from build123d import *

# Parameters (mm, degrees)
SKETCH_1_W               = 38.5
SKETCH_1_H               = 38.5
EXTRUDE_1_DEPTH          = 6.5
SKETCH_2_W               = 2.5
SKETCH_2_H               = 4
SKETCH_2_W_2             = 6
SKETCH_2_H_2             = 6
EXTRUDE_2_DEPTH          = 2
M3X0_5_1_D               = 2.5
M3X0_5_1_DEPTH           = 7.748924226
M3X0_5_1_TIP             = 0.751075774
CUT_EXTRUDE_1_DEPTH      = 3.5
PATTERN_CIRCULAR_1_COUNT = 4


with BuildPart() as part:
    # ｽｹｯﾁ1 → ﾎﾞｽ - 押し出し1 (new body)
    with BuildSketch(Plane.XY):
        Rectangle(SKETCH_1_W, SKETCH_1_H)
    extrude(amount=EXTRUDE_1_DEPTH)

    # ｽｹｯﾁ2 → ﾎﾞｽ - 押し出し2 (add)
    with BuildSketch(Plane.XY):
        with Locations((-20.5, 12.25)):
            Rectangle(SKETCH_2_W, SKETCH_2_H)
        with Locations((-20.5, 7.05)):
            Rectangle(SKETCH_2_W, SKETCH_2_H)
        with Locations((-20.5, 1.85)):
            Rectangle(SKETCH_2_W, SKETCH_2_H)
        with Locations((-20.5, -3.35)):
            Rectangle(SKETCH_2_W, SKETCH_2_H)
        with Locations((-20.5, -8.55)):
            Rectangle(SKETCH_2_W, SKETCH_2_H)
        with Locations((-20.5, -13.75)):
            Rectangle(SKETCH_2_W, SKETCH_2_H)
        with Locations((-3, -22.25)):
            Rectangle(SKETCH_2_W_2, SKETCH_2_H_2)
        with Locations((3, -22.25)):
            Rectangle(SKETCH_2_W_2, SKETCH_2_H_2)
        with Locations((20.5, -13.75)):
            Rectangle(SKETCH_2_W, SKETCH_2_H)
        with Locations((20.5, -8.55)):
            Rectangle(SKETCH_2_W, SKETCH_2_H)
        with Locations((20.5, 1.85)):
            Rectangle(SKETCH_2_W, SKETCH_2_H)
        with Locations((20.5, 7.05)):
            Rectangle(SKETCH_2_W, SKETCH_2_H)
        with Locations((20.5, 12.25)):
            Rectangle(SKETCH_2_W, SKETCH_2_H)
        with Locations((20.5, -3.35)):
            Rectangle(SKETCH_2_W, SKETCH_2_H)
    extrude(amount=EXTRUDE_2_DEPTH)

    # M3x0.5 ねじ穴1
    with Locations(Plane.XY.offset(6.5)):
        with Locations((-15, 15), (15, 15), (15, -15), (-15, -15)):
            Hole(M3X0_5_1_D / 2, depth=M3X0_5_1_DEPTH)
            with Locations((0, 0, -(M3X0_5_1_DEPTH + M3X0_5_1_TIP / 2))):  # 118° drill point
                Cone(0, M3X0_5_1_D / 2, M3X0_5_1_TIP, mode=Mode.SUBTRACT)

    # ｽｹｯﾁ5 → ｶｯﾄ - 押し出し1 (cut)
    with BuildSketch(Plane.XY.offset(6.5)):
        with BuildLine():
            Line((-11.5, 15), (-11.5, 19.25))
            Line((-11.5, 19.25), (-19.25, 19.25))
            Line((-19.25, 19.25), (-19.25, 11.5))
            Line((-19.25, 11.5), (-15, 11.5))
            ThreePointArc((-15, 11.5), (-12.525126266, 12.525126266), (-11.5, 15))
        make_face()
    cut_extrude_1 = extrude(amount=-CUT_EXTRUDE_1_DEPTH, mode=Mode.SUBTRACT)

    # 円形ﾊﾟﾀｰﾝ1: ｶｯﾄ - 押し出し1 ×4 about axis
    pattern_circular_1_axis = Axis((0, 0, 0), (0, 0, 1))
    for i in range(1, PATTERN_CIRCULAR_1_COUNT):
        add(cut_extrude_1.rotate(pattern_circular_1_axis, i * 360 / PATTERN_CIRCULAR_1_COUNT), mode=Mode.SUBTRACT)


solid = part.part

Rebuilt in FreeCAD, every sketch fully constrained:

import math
import FreeCAD as App
import Part
import Sketcher
Q = App.Units.Quantity


def add_polygon(sketch, points):
    """Adds a closed chain of lines whose ends are joined by coincident constraints."""
    first, n = sketch.GeometryCount, len(points)
    for a, b in zip(points, points[1:] + points[:1]):
        sketch.addGeometry(Part.LineSegment(App.Vector(*a, 0), App.Vector(*b, 0)), False)
    for i in range(n):
        sketch.addConstraint(Sketcher.Constraint("Coincident", first + i, 2, first + (i + 1) % n, 1))

doc = App.newDocument("Part")
params = doc.addObject("Spreadsheet::Sheet", "Params")
for row, (alias, value) in enumerate([
    ("sketch1_width", "38.5 mm"),
    ("pad1_length", "6.5 mm"),
    ("sketch2_width", "12 mm"),
    ("sketch2_height", "4 mm"),
    ("sketch2_height2", "6 mm"),
    ("sketch2_width2", "2.5 mm"),
    ("pad2_length", "2 mm"),
    ("sketch3_diameter", "2.5 mm"),
    ("hole_diameter", "2.5 mm"),
    ("hole_depth", "7.748924 mm"),
    ("sketch4_radius", "3.5 mm"),
    ("sketch4_width", "7.75 mm"),
    ("pocket1_length", "3.5 mm"),
], start=1):
    params.set(f"A{row}", alias)
    params.set(f"B{row}", "=" + value)
    params.setAlias(f"B{row}", alias)

body = doc.addObject("PartDesign::Body", "Body")

# Sketch on XY plane
sketch1 = body.newObject("Sketcher::SketchObject", "Sketch")
sketch1.AttachmentSupport = (doc.getObject("XY_Plane"), [""])
sketch1.MapMode = "FlatFace"
add_polygon(sketch1, [(-19.25, 19.25), (-19.25, -19.25), (19.25, -19.25), (19.25, 19.25)])  # lines 0-3
sketch1.addConstraint(Sketcher.Constraint("Vertical", 0))
sketch1.addConstraint(Sketcher.Constraint("Horizontal", 1))
sketch1.addConstraint(Sketcher.Constraint("Vertical", 2))
sketch1.addConstraint(Sketcher.Constraint("Horizontal", 3))
sketch1.addConstraint(Sketcher.Constraint("Symmetric", 0, 2, 2, 2, -1, 1))
sketch1.addConstraint(Sketcher.Constraint("Equal", 3, 0))
sketch1.addConstraint(Sketcher.Constraint("DistanceX", 1, 1, 1, 2, Q("38.5 mm")))
sketch1.setExpression("Constraints[10]", "Params.sketch1_width")
pad1 = body.newObject("PartDesign::Pad", "Pad")
pad1.Profile = sketch1
pad1.setExpression("Length", "Params.pad1_length")

# Sketch on XY plane
sketch2 = body.newObject("Sketcher::SketchObject", "Sketch001")
sketch2.AttachmentSupport = (doc.getObject("XY_Plane"), [""])
sketch2.MapMode = "FlatFace"
add_polygon(sketch2, [(-21.75, 14.25), (-21.75, 10.25), (-19.25, 10.25), (-19.25, 14.25)])  # lines 0-3
add_polygon(sketch2, [(-21.75, 9.05), (-21.75, 5.05), (-19.25, 5.05), (-19.25, 9.05)])  # lines 4-7
add_polygon(sketch2, [(-21.75, 3.85), (-21.75, -0.15), (-19.25, -0.15), (-19.25, 3.85)])  # lines 8-11
add_polygon(sketch2, [(-21.75, -1.35), (-21.75, -5.35), (-19.25, -5.35), (-19.25, -1.35)])  # lines 12-15
add_polygon(sketch2, [(-21.75, -6.55), (-21.75, -10.55), (-19.25, -10.55), (-19.25, -6.55)])  # lines 16-19
add_polygon(sketch2, [(-21.75, -11.75), (-21.75, -15.75), (-19.25, -15.75), (-19.25, -11.75)])  # lines 20-23
add_polygon(sketch2, [(-6, -19.25), (-6, -25.25), (6, -25.25), (6, -19.25)])  # lines 24-27
add_polygon(sketch2, [(19.25, -11.75), (19.25, -15.75), (21.75, -15.75), (21.75, -11.75)])  # lines 28-31
add_polygon(sketch2, [(19.25, -6.55), (19.25, -10.55), (21.75, -10.55), (21.75, -6.55)])  # lines 32-35
add_polygon(sketch2, [(19.25, 3.85), (19.25, -0.15), (21.75, -0.15), (21.75, 3.85)])  # lines 36-39
add_polygon(sketch2, [(19.25, 9.05), (19.25, 5.05), (21.75, 5.05), (21.75, 9.05)])  # lines 40-43
add_polygon(sketch2, [(19.25, 14.25), (19.25, 10.25), (21.75, 10.25), (21.75, 14.25)])  # lines 44-47
add_polygon(sketch2, [(19.25, -1.35), (19.25, -5.35), (21.75, -5.35), (21.75, -1.35)])  # lines 48-51
sketch2.addConstraint(Sketcher.Constraint("Vertical", 0))
sketch2.addConstraint(Sketcher.Constraint("Horizontal", 1))
sketch2.addConstraint(Sketcher.Constraint("Vertical", 2))
sketch2.addConstraint(Sketcher.Constraint("Horizontal", 3))
sketch2.addConstraint(Sketcher.Constraint("Vertical", 4))
sketch2.addConstraint(Sketcher.Constraint("Horizontal", 5))
sketch2.addConstraint(Sketcher.Constraint("Vertical", 6))
sketch2.addConstraint(Sketcher.Constraint("Horizontal", 7))
sketch2.addConstraint(Sketcher.Constraint("Vertical", 8))
sketch2.addConstraint(Sketcher.Constraint("Horizontal", 9))
sketch2.addConstraint(Sketcher.Constraint("Vertical", 10))
sketch2.addConstraint(Sketcher.Constraint("Horizontal", 11))
sketch2.addConstraint(Sketcher.Constraint("Vertical", 12))
sketch2.addConstraint(Sketcher.Constraint("Horizontal", 13))
sketch2.addConstraint(Sketcher.Constraint("Vertical", 14))
sketch2.addConstraint(Sketcher.Constraint("Horizontal", 15))
sketch2.addConstraint(Sketcher.Constraint("Vertical", 16))
sketch2.addConstraint(Sketcher.Constraint("Horizontal", 17))
sketch2.addConstraint(Sketcher.Constraint("Vertical", 18))
sketch2.addConstraint(Sketcher.Constraint("Horizontal", 19))
sketch2.addConstraint(Sketcher.Constraint("Vertical", 20))
sketch2.addConstraint(Sketcher.Constraint("Horizontal", 21))
sketch2.addConstraint(Sketcher.Constraint("Vertical", 22))
sketch2.addConstraint(Sketcher.Constraint("Horizontal", 23))
sketch2.addConstraint(Sketcher.Constraint("Vertical", 24))
sketch2.addConstraint(Sketcher.Constraint("Horizontal", 25))
sketch2.addConstraint(Sketcher.Constraint("Vertical", 26))
sketch2.addConstraint(Sketcher.Constraint("Horizontal", 27))
sketch2.addConstraint(Sketcher.Constraint("Vertical", 28))
sketch2.addConstraint(Sketcher.Constraint("Horizontal", 29))
sketch2.addConstraint(Sketcher.Constraint("Vertical", 30))
sketch2.addConstraint(Sketcher.Constraint("Horizontal", 31))
sketch2.addConstraint(Sketcher.Constraint("Vertical", 32))
sketch2.addConstraint(Sketcher.Constraint("Horizontal", 33))
sketch2.addConstraint(Sketcher.Constraint("Vertical", 34))
sketch2.addConstraint(Sketcher.Constraint("Horizontal", 35))
sketch2.addConstraint(Sketcher.Constraint("Vertical", 36))
sketch2.addConstraint(Sketcher.Constraint("Horizontal", 37))
sketch2.addConstraint(Sketcher.Constraint("Vertical", 38))
sketch2.addConstraint(Sketcher.Constraint("Horizontal", 39))
sketch2.addConstraint(Sketcher.Constraint("Vertical", 40))
sketch2.addConstraint(Sketcher.Constraint("Horizontal", 41))
sketch2.addConstraint(Sketcher.Constraint("Vertical", 42))
sketch2.addConstraint(Sketcher.Constraint("Horizontal", 43))
sketch2.addConstraint(Sketcher.Constraint("Vertical", 44))
sketch2.addConstraint(Sketcher.Constraint("Horizontal", 45))
sketch2.addConstraint(Sketcher.Constraint("Vertical", 46))
sketch2.addConstraint(Sketcher.Constraint("Horizontal", 47))
sketch2.addConstraint(Sketcher.Constraint("Vertical", 48))
sketch2.addConstraint(Sketcher.Constraint("Horizontal", 49))
sketch2.addConstraint(Sketcher.Constraint("Vertical", 50))
sketch2.addConstraint(Sketcher.Constraint("Horizontal", 51))
sketch2.addConstraint(Sketcher.Constraint("Symmetric", 21, 2, 28, 2, -2))
sketch2.addConstraint(Sketcher.Constraint("Symmetric", 23, 2, 30, 2, -2))
sketch2.addConstraint(Sketcher.Constraint("Symmetric", 17, 2, 32, 2, -2))
sketch2.addConstraint(Sketcher.Constraint("Symmetric", 19, 2, 34, 2, -2))
sketch2.addConstraint(Sketcher.Constraint("Symmetric", 9, 2, 36, 2, -2))
sketch2.addConstraint(Sketcher.Constraint("Symmetric", 11, 2, 38, 2, -2))
sketch2.addConstraint(Sketcher.Constraint("Symmetric", 5, 2, 40, 2, -2))
sketch2.addConstraint(Sketcher.Constraint("Symmetric", 7, 2, 42, 2, -2))
sketch2.addConstraint(Sketcher.Constraint("Symmetric", 1, 2, 44, 2, -2))
sketch2.addConstraint(Sketcher.Constraint("Symmetric", 3, 2, 46, 2, -2))
sketch2.addConstraint(Sketcher.Constraint("Symmetric", 13, 2, 48, 2, -2))
sketch2.addConstraint(Sketcher.Constraint("Symmetric", 15, 2, 50, 2, -2))
sketch2.addConstraint(Sketcher.Constraint("Vertical", 3, 2, 4, 2))
sketch2.addConstraint(Sketcher.Constraint("Vertical", 2, 2, 5, 2))
sketch2.addConstraint(Sketcher.Constraint("Vertical", 7, 2, 8, 2))
sketch2.addConstraint(Sketcher.Constraint("Vertical", 6, 2, 9, 2))
sketch2.addConstraint(Sketcher.Constraint("Vertical", 11, 2, 12, 2))
sketch2.addConstraint(Sketcher.Constraint("Vertical", 10, 2, 13, 2))
sketch2.addConstraint(Sketcher.Constraint("Vertical", 15, 2, 16, 2))
sketch2.addConstraint(Sketcher.Constraint("Vertical", 14, 2, 17, 2))
sketch2.addConstraint(Sketcher.Constraint("Vertical", 19, 2, 20, 2))
sketch2.addConstraint(Sketcher.Constraint("Vertical", 18, 2, 21, 2))
sketch2.addConstraint(Sketcher.Constraint("Equal", 2, 4))
sketch2.addConstraint(Sketcher.Constraint("Equal", 6, 8))
sketch2.addConstraint(Sketcher.Constraint("Equal", 10, 12))
sketch2.addConstraint(Sketcher.Constraint("Equal", 14, 16))
sketch2.addConstraint(Sketcher.Constraint("Equal", 18, 20))
sketch2.addConstraint(Sketcher.Constraint("DistanceX", 25, 1, 25, 2, Q("12 mm")))
sketch2.addConstraint(Sketcher.Constraint("DistanceY", 0, 2, 0, 1, Q("4 mm")))
sketch2.addConstraint(Sketcher.Constraint("DistanceY", 24, 2, 24, 1, Q("6 mm")))
sketch2.addConstraint(Sketcher.Constraint("DistanceX", 1, 1, 1, 2, Q("2.5 mm")))
sketch2.addConstraint(Sketcher.Constraint("DistanceX", 24, 2, -1, 1, Q("6 mm")))
sketch2.addConstraint(Sketcher.Constraint("DistanceY", 4, 2, 0, 2, Q("5.2 mm")))
sketch2.addConstraint(Sketcher.Constraint("DistanceY", 8, 2, 4, 2, Q("5.2 mm")))
sketch2.addConstraint(Sketcher.Constraint("DistanceY", 12, 2, 8, 2, Q("5.2 mm")))
sketch2.addConstraint(Sketcher.Constraint("DistanceY", 16, 2, 12, 2, Q("5.2 mm")))
sketch2.addConstraint(Sketcher.Constraint("DistanceY", 20, 2, 16, 2, Q("5.2 mm")))
sketch2.addConstraint(Sketcher.Constraint("DistanceY", 24, 2, 21, 2, Q("9.5 mm")))
sketch2.addConstraint(Sketcher.Constraint("DistanceX", 21, 2, 28, 2, Q("38.5 mm")))
sketch2.addConstraint(Sketcher.Constraint("DistanceY", -1, 1, 0, 2, Q("10.25 mm")))
sketch2.setExpression("Constraints[131]", "Params.sketch2_width")
sketch2.setExpression("Constraints[132]", "Params.sketch2_height")
sketch2.setExpression("Constraints[133]", "Params.sketch2_height2")
sketch2.setExpression("Constraints[134]", "Params.sketch2_width2")
pad2 = body.newObject("PartDesign::Pad", "Pad001")
pad2.Profile = sketch2
pad2.setExpression("Length", "Params.pad2_length")

# Sketch on XY plane
sketch3 = body.newObject("Sketcher::SketchObject", "Sketch002")
sketch3.AttachmentSupport = (doc.getObject("XY_Plane"), [""])
sketch3.MapMode = "FlatFace"
sketch3.AttachmentOffset = App.Placement(App.Vector(0, 0, 6.5), App.Rotation())
sketch3.addGeometry(Part.Circle(App.Vector(-15, 15, 0), App.Vector(0, 0, 1), 1.25), False)
sketch3.addGeometry(Part.Circle(App.Vector(15, 15, 0), App.Vector(0, 0, 1), 1.25), False)
sketch3.addGeometry(Part.Circle(App.Vector(15, -15, 0), App.Vector(0, 0, 1), 1.25), False)
sketch3.addGeometry(Part.Circle(App.Vector(-15, -15, 0), App.Vector(0, 0, 1), 1.25), False)
sketch3.addConstraint(Sketcher.Constraint("Equal", 0, 1))
sketch3.addConstraint(Sketcher.Constraint("Equal", 1, 2))
sketch3.addConstraint(Sketcher.Constraint("Equal", 2, 3))
sketch3.addConstraint(Sketcher.Constraint("Symmetric", 0, 3, 2, 3, -1, 1))
sketch3.addConstraint(Sketcher.Constraint("Symmetric", 1, 3, 3, 3, -1, 1))
sketch3.addConstraint(Sketcher.Constraint("Symmetric", 0, 3, 1, 3, -2))
sketch3.addConstraint(Sketcher.Constraint("Diameter", 0, Q("2.5 mm")))
sketch3.addConstraint(Sketcher.Constraint("DistanceX", 0, 3, -1, 1, Q("15 mm")))
sketch3.addConstraint(Sketcher.Constraint("DistanceY", -1, 1, 0, 3, Q("15 mm")))
sketch3.setExpression("Constraints[6]", "Params.sketch3_diameter")
doc.recompute()
hole = body.newObject("PartDesign::Hole", "Hole")
hole.Profile = sketch3
hole.ThreadType = "None"
hole.setExpression("Diameter", "Params.hole_diameter")
hole.DepthType = "Dimension"
hole.setExpression("Depth", "Params.hole_depth")
hole.DrillPoint = "Angled"
hole.DrillPointAngle = 118

# Sketch on XY plane
sketch4 = body.newObject("Sketcher::SketchObject", "Sketch003")
sketch4.AttachmentSupport = (doc.getObject("XY_Plane"), [""])
sketch4.MapMode = "FlatFace"
sketch4.AttachmentOffset = App.Placement(App.Vector(0, 0, 6.5), App.Rotation())
sketch4.addGeometry(Part.LineSegment(App.Vector(-11.5, 15, 0), App.Vector(-11.5, 19.25, 0)), False)
sketch4.addGeometry(Part.LineSegment(App.Vector(-11.5, 19.25, 0), App.Vector(-19.25, 19.25, 0)), False)
sketch4.addGeometry(Part.LineSegment(App.Vector(-19.25, 19.25, 0), App.Vector(-19.25, 11.5, 0)), False)
sketch4.addGeometry(Part.LineSegment(App.Vector(-19.25, 11.5, 0), App.Vector(-15, 11.5, 0)), False)
sketch4.addGeometry(Part.ArcOfCircle(Part.Circle(App.Vector(-15, 15, 0), App.Vector(0, 0, 1), 3.5), math.radians(-90), math.radians(0)), False)
sketch4.addConstraint(Sketcher.Constraint("Coincident", 0, 2, 1, 1))
sketch4.addConstraint(Sketcher.Constraint("Coincident", 1, 2, 2, 1))
sketch4.addConstraint(Sketcher.Constraint("Coincident", 2, 2, 3, 1))
sketch4.addConstraint(Sketcher.Constraint("Tangent", 3, 2, 4, 1))
sketch4.addConstraint(Sketcher.Constraint("Tangent", 4, 2, 0, 1))
sketch4.addConstraint(Sketcher.Constraint("Vertical", 0))
sketch4.addConstraint(Sketcher.Constraint("Horizontal", 1))
sketch4.addConstraint(Sketcher.Constraint("Vertical", 2))
sketch4.addConstraint(Sketcher.Constraint("Horizontal", 3))
sketch4.addConstraint(Sketcher.Constraint("Equal", 3, 0))
sketch4.addConstraint(Sketcher.Constraint("Radius", 4, Q("3.5 mm")))
sketch4.addConstraint(Sketcher.Constraint("DistanceX", 4, 3, -1, 1, Q("15 mm")))
sketch4.addConstraint(Sketcher.Constraint("DistanceY", -1, 1, 4, 3, Q("15 mm")))
sketch4.addConstraint(Sketcher.Constraint("DistanceX", 1, 2, 1, 1, Q("7.75 mm")))
sketch4.setExpression("Constraints[10]", "Params.sketch4_radius")
sketch4.setExpression("Constraints[13]", "Params.sketch4_width")
pocket1 = body.newObject("PartDesign::Pocket", "Pocket")
pocket1.Profile = sketch4
pocket1.setExpression("Length", "Params.pocket1_length")
doc.recompute()

polarpattern = body.newObject("PartDesign::PolarPattern", "PolarPattern")
polarpattern.Originals = [pocket1]
polarpattern.Axis = (doc.getObject("Z_Axis"), [""])
polarpattern.Angle = 360
polarpattern.Occurrences = 4
body.Tip = polarpattern

doc.recompute()
